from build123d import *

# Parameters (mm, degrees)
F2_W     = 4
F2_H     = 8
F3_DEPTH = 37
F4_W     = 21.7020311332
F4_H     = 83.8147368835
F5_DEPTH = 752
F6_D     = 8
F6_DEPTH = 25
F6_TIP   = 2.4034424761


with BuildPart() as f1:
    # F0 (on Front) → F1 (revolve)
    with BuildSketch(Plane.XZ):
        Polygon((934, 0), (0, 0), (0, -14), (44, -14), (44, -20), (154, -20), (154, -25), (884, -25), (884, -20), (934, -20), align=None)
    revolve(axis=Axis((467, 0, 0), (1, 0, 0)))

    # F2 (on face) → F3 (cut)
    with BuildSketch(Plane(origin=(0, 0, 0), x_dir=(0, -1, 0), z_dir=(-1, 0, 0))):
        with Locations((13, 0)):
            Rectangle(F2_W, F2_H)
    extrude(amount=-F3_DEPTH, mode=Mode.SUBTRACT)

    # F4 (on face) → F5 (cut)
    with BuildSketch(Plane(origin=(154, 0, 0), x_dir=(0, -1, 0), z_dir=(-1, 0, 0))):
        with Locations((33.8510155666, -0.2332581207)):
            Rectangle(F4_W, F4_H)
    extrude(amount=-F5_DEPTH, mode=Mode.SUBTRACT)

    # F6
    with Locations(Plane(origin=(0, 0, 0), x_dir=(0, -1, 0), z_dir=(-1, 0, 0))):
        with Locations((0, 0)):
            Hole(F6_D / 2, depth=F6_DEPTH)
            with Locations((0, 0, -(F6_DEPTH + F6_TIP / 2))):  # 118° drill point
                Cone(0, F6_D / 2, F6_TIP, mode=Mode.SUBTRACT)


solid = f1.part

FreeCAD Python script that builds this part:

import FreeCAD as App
import Part
import Sketcher
from FreeCAD import Vector
Q = App.Units.Quantity


def add_polygon(sketch, points):
    """Adds a closed chain of lines whose ends are joined by coincident constraints."""
    first, n = sketch.GeometryCount, len(points)
    for a, b in zip(points, points[1:] + points[:1]):
        sketch.addGeometry(Part.LineSegment(App.Vector(*a, 0), App.Vector(*b, 0)), False)
    for i in range(n):
        sketch.addConstraint(Sketcher.Constraint("Coincident", first + i, 2, first + (i + 1) % n, 1))

doc = App.newDocument("Part")
body = doc.addObject("PartDesign::Body", "Body")

sketch1 = body.newObject("Sketcher::SketchObject", "Sketch")
sketch1.AttachmentSupport = (doc.getObject("XZ_Plane"), [""])
sketch1.MapMode = "FlatFace"
add_polygon(sketch1, [(934, 0), (0, 0), (0, -14), (44, -14), (44, -20), (154, -20), (154, -25), (884, -25), (884, -20), (934, -20)])
sketch1.addConstraint([
    Sketcher.Constraint("Horizontal", 0),
    Sketcher.Constraint("Vertical", 1),
    Sketcher.Constraint("Horizontal", 2),
    Sketcher.Constraint("Vertical", 3),
    Sketcher.Constraint("Horizontal", 4),
    Sketcher.Constraint("Vertical", 5),
    Sketcher.Constraint("Horizontal", 6),
    Sketcher.Constraint("Vertical", 7),
    Sketcher.Constraint("Horizontal", 8),
    Sketcher.Constraint("Vertical", 9),
    Sketcher.Constraint("Coincident", 0, 2, -1, 1),
    Sketcher.Constraint("Horizontal", 4, 2, 7, 2),
    Sketcher.Constraint("DistanceX", 0, 2, 0, 1, Q("934 mm")),
    Sketcher.Constraint("DistanceX", 2, 1, 2, 2, Q("44 mm")),
    Sketcher.Constraint("DistanceX", 4, 1, 4, 2, Q("110 mm")),
    Sketcher.Constraint("DistanceX", 6, 1, 6, 2, Q("730 mm")),
    Sketcher.Constraint("DistanceY", 1, 2, 1, 1, Q("14 mm")),
    Sketcher.Constraint("DistanceY", 3, 2, 3, 1, Q("6 mm")),
    Sketcher.Constraint("DistanceY", 5, 2, 5, 1, Q("5 mm")),
])
revolution = body.newObject("PartDesign::Revolution", "Revolution")
revolution.Profile = sketch1
revolution.ReferenceAxis = (sketch1, ["H_Axis"])
revolution.Angle = 360

sketch2 = body.newObject("Sketcher::SketchObject", "Sketch001")
sketch2.AttachmentSupport = (doc.getObject("YZ_Plane"), [""])
sketch2.MapMode = "FlatFace"
add_polygon(sketch2, [(-11, 4), (-11, -4), (-15, -4), (-15, 4)])
sketch2.addConstraint([
    Sketcher.Constraint("Vertical", 0),
    Sketcher.Constraint("Horizontal", 1),
    Sketcher.Constraint("Vertical", 2),
    Sketcher.Constraint("Horizontal", 3),
    Sketcher.Constraint("DistanceX", 1, 2, 1, 1, Q("4 mm")),
    Sketcher.Constraint("DistanceY", 0, 2, 0, 1, Q("8 mm")),
    Sketcher.Constraint("DistanceX", 0, 2, -1, 1, Q("11 mm")),
    Sketcher.Constraint("DistanceY", 0, 2, -1, 1, Q("4 mm")),
])
pocket1 = body.newObject("PartDesign::Pocket", "Pocket")
pocket1.Profile = sketch2
pocket1.Length = 37
pocket1.Reversed = True

sketch3 = body.newObject("Sketcher::SketchObject", "Sketch002")
sketch3.AttachmentSupport = (doc.getObject("YZ_Plane"), [""])
sketch3.MapMode = "FlatFace"
sketch3.AttachmentOffset = App.Placement(Vector(0, 0, 154), App.Rotation())
add_polygon(sketch3, [(-23, 41.67411), (-23, -42.140627), (-44.702031, -42.140627), (-44.702031, 41.67411)])
sketch3.addConstraint([
    Sketcher.Constraint("Vertical", 0),
    Sketcher.Constraint("Horizontal", 1),
    Sketcher.Constraint("Vertical", 2),
    Sketcher.Constraint("Horizontal", 3),
    Sketcher.Constraint("DistanceX", 0, 2, -1, 1, Q("23 mm")),
    Sketcher.Constraint("DistanceX", 1, 2, 1, 1, Q("21.702031 mm")),
    Sketcher.Constraint("DistanceY", 0, 2, 0, 1, Q("83.814737 mm")),
    Sketcher.Constraint("DistanceY", -1, 1, 2, 2, Q("41.67411 mm")),
])
pocket2 = body.newObject("PartDesign::Pocket", "Pocket001")
pocket2.Profile = sketch3
pocket2.Length = 752
pocket2.Reversed = True

sketch4 = body.newObject("Sketcher::SketchObject", "Sketch003")
sketch4.AttachmentSupport = (doc.getObject("YZ_Plane"), [""])
sketch4.MapMode = "FlatFace"
sketch4.addGeometry(Part.Circle(Vector(0, 0, 0), Vector(0, 0, 1), 4), False)
sketch4.addConstraint([
    Sketcher.Constraint("Coincident", 0, 3, -1, 1),
    Sketcher.Constraint("Diameter", 0, Q("8 mm")),
])
doc.recompute()
hole = body.newObject("PartDesign::Hole", "Hole")
hole.Profile = sketch4
hole.ThreadType = "None"
hole.Diameter = 8
hole.DepthType = "Dimension"
hole.Depth = 25
hole.DrillPoint = "Angled"
hole.DrillPointAngle = 118
hole.Reversed = True

doc.recompute()
